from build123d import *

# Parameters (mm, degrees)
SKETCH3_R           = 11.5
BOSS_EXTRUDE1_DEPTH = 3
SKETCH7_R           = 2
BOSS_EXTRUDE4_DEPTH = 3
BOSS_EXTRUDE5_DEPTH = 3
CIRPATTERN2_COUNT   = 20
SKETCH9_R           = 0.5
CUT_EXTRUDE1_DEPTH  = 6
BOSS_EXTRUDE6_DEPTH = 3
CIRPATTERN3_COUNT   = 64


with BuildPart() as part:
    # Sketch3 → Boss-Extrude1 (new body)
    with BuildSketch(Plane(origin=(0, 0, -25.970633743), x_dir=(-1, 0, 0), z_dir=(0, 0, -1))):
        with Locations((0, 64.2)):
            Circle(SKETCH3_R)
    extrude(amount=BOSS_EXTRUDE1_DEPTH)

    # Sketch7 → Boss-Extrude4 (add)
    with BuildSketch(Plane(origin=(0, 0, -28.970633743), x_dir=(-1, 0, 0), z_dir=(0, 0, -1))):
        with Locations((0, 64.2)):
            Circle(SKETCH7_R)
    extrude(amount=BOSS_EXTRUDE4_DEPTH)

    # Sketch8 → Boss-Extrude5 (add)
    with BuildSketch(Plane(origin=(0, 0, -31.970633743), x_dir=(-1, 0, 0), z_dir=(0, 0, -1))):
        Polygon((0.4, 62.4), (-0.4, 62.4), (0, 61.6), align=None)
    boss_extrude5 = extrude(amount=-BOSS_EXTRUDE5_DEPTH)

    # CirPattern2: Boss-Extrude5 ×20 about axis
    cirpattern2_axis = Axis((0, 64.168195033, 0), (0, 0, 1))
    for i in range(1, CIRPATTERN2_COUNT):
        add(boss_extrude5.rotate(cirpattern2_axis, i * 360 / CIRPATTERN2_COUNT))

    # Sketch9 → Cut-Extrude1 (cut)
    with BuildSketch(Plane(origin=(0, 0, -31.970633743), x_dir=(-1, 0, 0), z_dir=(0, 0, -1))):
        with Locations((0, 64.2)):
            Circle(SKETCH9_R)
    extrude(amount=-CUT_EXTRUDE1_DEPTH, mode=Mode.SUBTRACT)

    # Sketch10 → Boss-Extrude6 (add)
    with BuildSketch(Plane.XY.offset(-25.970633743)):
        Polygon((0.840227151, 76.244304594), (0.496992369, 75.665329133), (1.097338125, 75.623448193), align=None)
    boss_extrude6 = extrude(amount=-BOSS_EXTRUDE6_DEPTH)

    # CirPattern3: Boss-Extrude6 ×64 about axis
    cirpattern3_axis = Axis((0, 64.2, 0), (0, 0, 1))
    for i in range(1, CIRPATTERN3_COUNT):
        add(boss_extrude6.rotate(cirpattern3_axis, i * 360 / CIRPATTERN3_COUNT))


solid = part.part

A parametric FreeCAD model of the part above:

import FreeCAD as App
import Part
import Sketcher
from FreeCAD import Vector


def add_polygon(sketch, points):
    """Adds a closed chain of lines whose ends are joined by coincident constraints."""
    first, n = sketch.GeometryCount, len(points)
    for a, b in zip(points, points[1:] + points[:1]):
        sketch.addGeometry(Part.LineSegment(App.Vector(*a, 0), App.Vector(*b, 0)), False)
    for i in range(n):
        sketch.addConstraint(Sketcher.Constraint("Coincident", first + i, 2, first + (i + 1) % n, 1))

doc = App.newDocument("Part")
params = doc.addObject("Spreadsheet::Sheet", "Params")
for row, (alias, value) in enumerate([
    ("sketch1_diameter", "23 mm"),
    ("pad1_length", "3 mm"),
    ("sketch2_diameter", "4 mm"),
    ("pad2_length", "3 mm"),
    ("sketch3_width", "0.8 mm"),
    ("pad3_length", "3 mm"),
    ("sketch4_diameter", "1 mm"),
    ("pocket1_length", "6 mm"),
    ("pad4_length", "3 mm"),
], start=1):
    params.set(f"A{row}", alias)
    params.set(f"B{row}", "=" + value)
    params.setAlias(f"B{row}", alias)

body = doc.addObject("PartDesign::Body", "Body")

sketch1 = doc.addObject("Sketcher::SketchObject", "Sketch")
body.addObject(sketch1)
sketch1.AttachmentSupport = (doc.XY_Plane, [""])
sketch1.MapMode = "FlatFace"
sketch1.AttachmentOffset = App.Placement(Vector(0, 0, -25.970634), App.Rotation())
sketch1.addGeometry(Part.Circle(Vector(0, 64, 0), Vector(0, 0, 1), 12), False)
sketch1.addConstraint([
    Sketcher.Constraint("PointOnObject", 0, 3, -2),
    Sketcher.Constraint("Diameter", 0, 23.0),
    Sketcher.Constraint("DistanceY", -1, 1, 0, 3, 64.2),
])
sketch1.setExpression("Constraints[1]", "Params.sketch1_diameter")
pad1 = doc.addObject("PartDesign::Pad", "Pad")
body.addObject(pad1)
pad1.Profile = sketch1
pad1.setExpression("Length", "Params.pad1_length")
pad1.Reversed = True

sketch2 = doc.addObject("Sketcher::SketchObject", "Sketch001")
body.addObject(sketch2)
sketch2.AttachmentSupport = (doc.XY_Plane, [""])
sketch2.MapMode = "FlatFace"
sketch2.AttachmentOffset = App.Placement(Vector(0, 0, -28.970634), App.Rotation())
sketch2.addGeometry(Part.Circle(Vector(0, 64.2, 0), Vector(0, 0, 1), 2), False)
sketch2.addConstraint([
    Sketcher.Constraint("PointOnObject", 0, 3, -2),
    Sketcher.Constraint("Diameter", 0, 4.0),
    Sketcher.Constraint("DistanceY", -1, 1, 0, 3, 64.2),
])
sketch2.setExpression("Constraints[1]", "Params.sketch2_diameter")
pad2 = doc.addObject("PartDesign::Pad", "Pad001")
body.addObject(pad2)
pad2.Profile = sketch2
pad2.setExpression("Length", "Params.pad2_length")
pad2.Reversed = True

sketch3 = doc.addObject("Sketcher::SketchObject", "Sketch002")
body.addObject(sketch3)
sketch3.AttachmentSupport = (doc.XY_Plane, [""])
sketch3.MapMode = "FlatFace"
sketch3.AttachmentOffset = App.Placement(Vector(0, 0, -31.970634), App.Rotation())
add_polygon(sketch3, [(-0.4, 62.4), (0.4, 62.4), (0, 61.6)])
sketch3.addConstraint([
    Sketcher.Constraint("Horizontal", 0),
    Sketcher.Constraint("PointOnObject", 1, 2, -2),
    Sketcher.Constraint("Equal", 1, 2),
    Sketcher.Constraint("DistanceX", 0, 1, 0, 2, 0.8),
    Sketcher.Constraint("DistanceY", -1, 1, 0, 2, 62.4),
    Sketcher.Constraint("DistanceY", -1, 1, 1, 2, 61.6),
])
sketch3.setExpression("Constraints[6]", "Params.sketch3_width")
pad3 = doc.addObject("PartDesign::Pad", "Pad002")
body.addObject(pad3)
pad3.Profile = sketch3
pad3.setExpression("Length", "Params.pad3_length")
doc.recompute()

datumline = doc.addObject("PartDesign::Line", "DatumLine")
body.addObject(datumline)
datumline.Placement = App.Placement(Vector(0, 64.168195, 0), App.Rotation(Vector(0, 0, 1), Vector(0, 0, 1)))
polarpattern = doc.addObject("PartDesign::PolarPattern", "PolarPattern")
body.addObject(polarpattern)
polarpattern.Originals = [pad3]
polarpattern.Axis = (datumline, [""])
polarpattern.Angle = 360
polarpattern.Occurrences = 20
body.Tip = polarpattern

sketch4 = doc.addObject("Sketcher::SketchObject", "Sketch003")
body.addObject(sketch4)
sketch4.AttachmentSupport = (doc.XY_Plane, [""])
sketch4.MapMode = "FlatFace"
sketch4.AttachmentOffset = App.Placement(Vector(0, 0, -31.970634), App.Rotation())
sketch4.addGeometry(Part.Circle(Vector(0, 64.2, 0), Vector(0, 0, 1), 0.5), False)
sketch4.addConstraint([
    Sketcher.Constraint("PointOnObject", 0, 3, -2),
    Sketcher.Constraint("Diameter", 0, 1.0),
    Sketcher.Constraint("DistanceY", -1, 1, 0, 3, 64.2),
])
sketch4.setExpression("Constraints[1]", "Params.sketch4_diameter")
pocket1 = doc.addObject("PartDesign::Pocket", "Pocket")
body.addObject(pocket1)
pocket1.Profile = sketch4
pocket1.setExpression("Length", "Params.pocket1_length")
pocket1.Reversed = True

sketch5 = doc.addObject("Sketcher::SketchObject", "Sketch004")
body.addObject(sketch5)
sketch5.AttachmentSupport = (doc.XY_Plane, [""])
sketch5.MapMode = "FlatFace"
sketch5.AttachmentOffset = App.Placement(Vector(0, 0, -25.970634), App.Rotation())
add_polygon(sketch5, [(0.8, 76.2), (0.5, 75.7), (1.1, 75.6)])
sketch5.addConstraint([
    Sketcher.Constraint("Distance", 0, 0.67307),
    Sketcher.Constraint("Distance", 2, 0.671989),
    Sketcher.Constraint("DistanceY", -1, 1, 0, 2, 75.665329),
    Sketcher.Constraint("DistanceX", -1, 1, 1, 2, 1.097338),
    Sketcher.Constraint("DistanceY", -1, 1, 1, 2, 75.623448),
    Sketcher.Constraint("DistanceX", 2, 2, 1, 2, 0.257111),
])
pad4 = doc.addObject("PartDesign::Pad", "Pad003")
body.addObject(pad4)
pad4.Profile = sketch5
pad4.setExpression("Length", "Params.pad4_length")
pad4.Reversed = True
doc.recompute()

datumline2 = doc.addObject("PartDesign::Line", "DatumLine001")
body.addObject(datumline2)
datumline2.Placement = App.Placement(Vector(0, 64.2, 0), App.Rotation(Vector(0, 0, 1), Vector(0, 0, 1)))
polarpattern2 = doc.addObject("PartDesign::PolarPattern", "PolarPattern001")
body.addObject(polarpattern2)
polarpattern2.Originals = [pad4]
polarpattern2.Axis = (datumline2, [""])
polarpattern2.Angle = 360
polarpattern2.Occurrences = 64
body.Tip = polarpattern2

doc.recompute()
